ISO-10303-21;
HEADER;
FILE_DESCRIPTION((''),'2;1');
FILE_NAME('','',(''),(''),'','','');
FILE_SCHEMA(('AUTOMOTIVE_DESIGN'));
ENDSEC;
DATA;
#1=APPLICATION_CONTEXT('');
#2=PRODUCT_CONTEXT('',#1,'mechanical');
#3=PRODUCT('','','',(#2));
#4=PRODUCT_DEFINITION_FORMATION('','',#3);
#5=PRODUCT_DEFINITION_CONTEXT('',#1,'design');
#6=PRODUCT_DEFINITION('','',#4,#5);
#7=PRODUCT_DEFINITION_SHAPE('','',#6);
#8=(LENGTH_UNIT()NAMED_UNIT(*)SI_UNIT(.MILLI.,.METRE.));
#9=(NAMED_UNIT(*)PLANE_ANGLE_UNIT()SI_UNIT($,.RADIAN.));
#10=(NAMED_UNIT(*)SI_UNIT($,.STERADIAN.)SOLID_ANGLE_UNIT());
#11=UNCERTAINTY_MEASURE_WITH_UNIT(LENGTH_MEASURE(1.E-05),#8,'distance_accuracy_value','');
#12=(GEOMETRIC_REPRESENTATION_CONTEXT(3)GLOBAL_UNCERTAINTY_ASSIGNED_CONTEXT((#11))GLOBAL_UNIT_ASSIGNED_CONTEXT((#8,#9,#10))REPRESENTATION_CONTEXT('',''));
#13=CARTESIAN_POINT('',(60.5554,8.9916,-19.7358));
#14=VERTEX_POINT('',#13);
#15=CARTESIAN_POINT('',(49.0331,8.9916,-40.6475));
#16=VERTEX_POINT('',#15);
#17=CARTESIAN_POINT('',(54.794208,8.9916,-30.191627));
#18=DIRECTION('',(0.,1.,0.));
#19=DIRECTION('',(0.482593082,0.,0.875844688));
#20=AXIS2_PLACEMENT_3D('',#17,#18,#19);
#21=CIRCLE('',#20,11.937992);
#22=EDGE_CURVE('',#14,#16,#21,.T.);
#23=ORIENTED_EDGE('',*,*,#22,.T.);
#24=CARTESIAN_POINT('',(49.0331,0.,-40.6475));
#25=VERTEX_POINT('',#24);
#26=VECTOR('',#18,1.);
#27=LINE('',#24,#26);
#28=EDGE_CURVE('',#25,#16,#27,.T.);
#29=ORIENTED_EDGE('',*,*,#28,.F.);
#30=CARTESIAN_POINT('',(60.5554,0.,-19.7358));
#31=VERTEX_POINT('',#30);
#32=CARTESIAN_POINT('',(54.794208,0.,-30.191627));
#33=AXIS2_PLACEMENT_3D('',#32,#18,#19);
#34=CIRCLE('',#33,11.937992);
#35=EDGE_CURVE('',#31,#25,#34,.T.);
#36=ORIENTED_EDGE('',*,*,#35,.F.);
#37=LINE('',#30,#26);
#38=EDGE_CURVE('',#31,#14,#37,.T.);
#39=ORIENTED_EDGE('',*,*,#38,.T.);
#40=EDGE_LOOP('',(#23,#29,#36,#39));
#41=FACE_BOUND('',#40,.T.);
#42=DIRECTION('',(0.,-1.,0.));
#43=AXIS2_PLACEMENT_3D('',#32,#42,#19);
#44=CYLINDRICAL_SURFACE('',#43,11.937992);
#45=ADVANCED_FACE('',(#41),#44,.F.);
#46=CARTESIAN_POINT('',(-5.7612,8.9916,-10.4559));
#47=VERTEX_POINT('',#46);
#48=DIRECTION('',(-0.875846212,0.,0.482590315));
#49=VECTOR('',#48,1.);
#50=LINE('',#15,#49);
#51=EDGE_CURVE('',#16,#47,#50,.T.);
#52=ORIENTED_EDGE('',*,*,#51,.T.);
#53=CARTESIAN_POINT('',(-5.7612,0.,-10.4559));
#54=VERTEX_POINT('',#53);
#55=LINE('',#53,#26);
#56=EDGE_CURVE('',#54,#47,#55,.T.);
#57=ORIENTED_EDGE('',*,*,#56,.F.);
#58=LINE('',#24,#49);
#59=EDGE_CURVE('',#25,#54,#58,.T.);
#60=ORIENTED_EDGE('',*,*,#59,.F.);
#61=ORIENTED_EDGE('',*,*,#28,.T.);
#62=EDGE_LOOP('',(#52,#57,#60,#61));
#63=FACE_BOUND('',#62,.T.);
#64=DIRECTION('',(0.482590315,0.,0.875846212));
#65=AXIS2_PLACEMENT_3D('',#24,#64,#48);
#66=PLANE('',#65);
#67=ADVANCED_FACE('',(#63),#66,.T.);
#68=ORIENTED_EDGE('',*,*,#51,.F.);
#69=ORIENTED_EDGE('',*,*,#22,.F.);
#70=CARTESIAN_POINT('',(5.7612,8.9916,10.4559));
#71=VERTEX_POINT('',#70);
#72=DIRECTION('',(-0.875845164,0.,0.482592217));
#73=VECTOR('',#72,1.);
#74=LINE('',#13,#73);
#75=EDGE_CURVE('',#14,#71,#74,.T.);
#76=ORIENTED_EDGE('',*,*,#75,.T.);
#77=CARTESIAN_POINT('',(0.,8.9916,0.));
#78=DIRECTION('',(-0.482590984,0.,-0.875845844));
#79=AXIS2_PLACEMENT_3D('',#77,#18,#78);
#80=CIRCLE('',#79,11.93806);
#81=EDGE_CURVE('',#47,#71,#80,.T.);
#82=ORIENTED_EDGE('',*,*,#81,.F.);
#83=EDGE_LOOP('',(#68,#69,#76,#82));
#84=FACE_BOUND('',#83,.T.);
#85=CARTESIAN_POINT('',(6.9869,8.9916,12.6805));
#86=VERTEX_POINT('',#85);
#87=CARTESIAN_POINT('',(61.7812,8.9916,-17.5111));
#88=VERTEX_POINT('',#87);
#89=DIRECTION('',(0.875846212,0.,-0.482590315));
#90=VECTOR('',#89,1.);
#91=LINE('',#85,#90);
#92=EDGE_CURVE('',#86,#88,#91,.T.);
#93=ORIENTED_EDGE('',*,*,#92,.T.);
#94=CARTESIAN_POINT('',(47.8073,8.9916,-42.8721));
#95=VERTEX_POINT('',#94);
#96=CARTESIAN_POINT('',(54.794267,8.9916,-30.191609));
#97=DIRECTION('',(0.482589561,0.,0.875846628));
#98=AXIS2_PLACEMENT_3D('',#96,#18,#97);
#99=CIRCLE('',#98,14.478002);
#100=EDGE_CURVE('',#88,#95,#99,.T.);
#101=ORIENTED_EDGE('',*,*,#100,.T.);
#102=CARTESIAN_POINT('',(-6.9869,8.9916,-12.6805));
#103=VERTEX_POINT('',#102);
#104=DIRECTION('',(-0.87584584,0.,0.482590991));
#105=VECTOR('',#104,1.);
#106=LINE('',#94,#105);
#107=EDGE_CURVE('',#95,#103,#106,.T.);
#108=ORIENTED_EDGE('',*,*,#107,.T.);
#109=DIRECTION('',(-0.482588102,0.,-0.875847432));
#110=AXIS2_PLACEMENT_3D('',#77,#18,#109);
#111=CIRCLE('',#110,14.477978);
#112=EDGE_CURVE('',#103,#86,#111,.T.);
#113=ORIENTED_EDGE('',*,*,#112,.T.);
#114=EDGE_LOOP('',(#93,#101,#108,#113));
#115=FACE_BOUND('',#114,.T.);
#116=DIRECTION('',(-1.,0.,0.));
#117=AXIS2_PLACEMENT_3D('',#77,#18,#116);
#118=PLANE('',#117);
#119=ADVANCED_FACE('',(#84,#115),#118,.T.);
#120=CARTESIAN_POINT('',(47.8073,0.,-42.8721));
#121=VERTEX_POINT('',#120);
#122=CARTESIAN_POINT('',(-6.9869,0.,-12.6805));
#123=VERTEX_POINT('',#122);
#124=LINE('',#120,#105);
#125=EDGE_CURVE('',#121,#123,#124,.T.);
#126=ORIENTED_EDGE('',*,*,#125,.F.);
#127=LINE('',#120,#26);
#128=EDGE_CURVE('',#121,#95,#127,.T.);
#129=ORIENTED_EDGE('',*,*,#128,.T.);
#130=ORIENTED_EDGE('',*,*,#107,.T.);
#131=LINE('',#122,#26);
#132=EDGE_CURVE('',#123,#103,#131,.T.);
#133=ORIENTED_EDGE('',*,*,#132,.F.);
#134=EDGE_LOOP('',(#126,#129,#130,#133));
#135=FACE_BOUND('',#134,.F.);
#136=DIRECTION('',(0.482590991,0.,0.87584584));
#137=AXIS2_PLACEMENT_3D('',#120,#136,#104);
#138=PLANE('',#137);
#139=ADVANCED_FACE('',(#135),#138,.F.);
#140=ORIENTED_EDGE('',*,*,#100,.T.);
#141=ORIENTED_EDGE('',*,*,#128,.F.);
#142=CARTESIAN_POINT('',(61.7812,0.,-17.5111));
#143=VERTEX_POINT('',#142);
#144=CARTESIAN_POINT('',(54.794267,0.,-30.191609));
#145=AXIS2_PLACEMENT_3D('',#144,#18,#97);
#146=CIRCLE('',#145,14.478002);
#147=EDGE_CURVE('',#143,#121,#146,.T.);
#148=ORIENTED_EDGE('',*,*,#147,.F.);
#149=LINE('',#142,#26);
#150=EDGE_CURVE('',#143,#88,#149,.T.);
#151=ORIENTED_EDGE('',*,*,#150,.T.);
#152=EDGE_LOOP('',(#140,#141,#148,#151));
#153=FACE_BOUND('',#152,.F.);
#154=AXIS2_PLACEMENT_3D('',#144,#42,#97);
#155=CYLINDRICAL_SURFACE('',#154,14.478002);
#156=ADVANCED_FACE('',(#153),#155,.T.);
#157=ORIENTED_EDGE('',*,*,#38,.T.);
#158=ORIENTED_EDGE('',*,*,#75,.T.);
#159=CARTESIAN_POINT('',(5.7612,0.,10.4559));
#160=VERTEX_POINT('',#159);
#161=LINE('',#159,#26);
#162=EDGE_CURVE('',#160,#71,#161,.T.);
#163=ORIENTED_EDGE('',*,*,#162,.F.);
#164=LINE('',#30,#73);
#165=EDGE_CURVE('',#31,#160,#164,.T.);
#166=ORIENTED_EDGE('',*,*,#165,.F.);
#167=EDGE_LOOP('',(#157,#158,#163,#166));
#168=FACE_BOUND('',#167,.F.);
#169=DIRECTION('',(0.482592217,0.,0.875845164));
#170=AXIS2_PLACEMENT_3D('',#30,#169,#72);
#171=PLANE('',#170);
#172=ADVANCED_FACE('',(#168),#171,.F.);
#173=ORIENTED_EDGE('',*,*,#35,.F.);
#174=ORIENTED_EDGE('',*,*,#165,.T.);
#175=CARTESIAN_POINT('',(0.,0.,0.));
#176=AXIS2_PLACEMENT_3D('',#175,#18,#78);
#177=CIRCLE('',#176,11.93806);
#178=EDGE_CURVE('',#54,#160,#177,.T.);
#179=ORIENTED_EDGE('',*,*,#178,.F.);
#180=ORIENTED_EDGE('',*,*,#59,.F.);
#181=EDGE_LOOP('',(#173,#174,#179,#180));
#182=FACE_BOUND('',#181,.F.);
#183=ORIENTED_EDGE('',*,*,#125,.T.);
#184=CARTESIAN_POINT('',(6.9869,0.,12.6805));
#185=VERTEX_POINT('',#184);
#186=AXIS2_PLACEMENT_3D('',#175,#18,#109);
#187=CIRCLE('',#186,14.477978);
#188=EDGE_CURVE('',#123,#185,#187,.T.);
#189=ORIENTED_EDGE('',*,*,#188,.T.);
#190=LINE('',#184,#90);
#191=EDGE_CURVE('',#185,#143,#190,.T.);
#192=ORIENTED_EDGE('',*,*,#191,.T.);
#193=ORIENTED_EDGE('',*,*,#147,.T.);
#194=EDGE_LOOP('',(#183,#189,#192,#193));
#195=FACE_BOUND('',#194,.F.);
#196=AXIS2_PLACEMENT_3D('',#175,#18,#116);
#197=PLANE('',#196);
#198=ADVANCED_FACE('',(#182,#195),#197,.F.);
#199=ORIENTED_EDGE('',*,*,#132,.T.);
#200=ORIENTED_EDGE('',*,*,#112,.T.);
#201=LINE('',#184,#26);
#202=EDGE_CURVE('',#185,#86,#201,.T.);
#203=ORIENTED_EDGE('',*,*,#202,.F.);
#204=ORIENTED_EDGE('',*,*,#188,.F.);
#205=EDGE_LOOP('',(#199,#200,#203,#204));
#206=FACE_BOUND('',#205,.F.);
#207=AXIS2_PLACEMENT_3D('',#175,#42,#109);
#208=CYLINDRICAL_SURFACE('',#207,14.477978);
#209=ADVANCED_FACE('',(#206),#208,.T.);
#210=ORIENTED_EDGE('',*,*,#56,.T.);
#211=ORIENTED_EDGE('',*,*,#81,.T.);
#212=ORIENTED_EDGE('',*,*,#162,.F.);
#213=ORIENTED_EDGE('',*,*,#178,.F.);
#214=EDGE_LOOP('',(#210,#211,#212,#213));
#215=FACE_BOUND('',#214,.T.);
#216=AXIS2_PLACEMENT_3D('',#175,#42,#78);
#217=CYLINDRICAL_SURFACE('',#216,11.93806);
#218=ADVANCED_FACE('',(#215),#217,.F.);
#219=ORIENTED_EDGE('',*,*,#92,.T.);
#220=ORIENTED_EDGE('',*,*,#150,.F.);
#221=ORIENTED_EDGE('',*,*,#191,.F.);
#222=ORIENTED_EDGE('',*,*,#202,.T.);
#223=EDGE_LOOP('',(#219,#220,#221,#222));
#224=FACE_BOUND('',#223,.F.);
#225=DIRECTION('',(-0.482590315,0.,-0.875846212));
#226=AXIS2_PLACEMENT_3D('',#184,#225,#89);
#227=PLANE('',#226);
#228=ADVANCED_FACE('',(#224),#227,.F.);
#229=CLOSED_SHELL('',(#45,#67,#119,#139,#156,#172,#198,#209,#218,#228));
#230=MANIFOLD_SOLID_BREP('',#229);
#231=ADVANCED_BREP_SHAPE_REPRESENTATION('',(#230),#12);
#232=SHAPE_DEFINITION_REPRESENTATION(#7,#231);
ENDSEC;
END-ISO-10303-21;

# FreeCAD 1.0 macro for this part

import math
import FreeCAD as App
import Part
import Sketcher

V = App.Vector
Q = App.Units.Quantity

doc = App.newDocument("Part")
body = doc.addObject("PartDesign::Body", "Body")

sketch1 = body.newObject("Sketcher::SketchObject", "Sketch")
sketch1.AttachmentSupport = (doc.getObject("XZ_Plane"), [""])
sketch1.MapMode = "FlatFace"
sketch1.addGeometry([
    Part.ArcOfCircle(Part.Circle(V(0, 0, 0), V(0, 0, 1), 14), math.radians(61), math.radians(241)),
    Part.LineSegment(V(7, 13, 0), V(62, -18, 0)),
    Part.ArcOfCircle(Part.Circle(V(55, -30, 0), V(0, 0, 1), 14), math.radians(-119), math.radians(61)),
    Part.LineSegment(V(48, -43, 0), V(-7, -13, 0)),
    Part.LineSegment(V(-6, -10, 0), V(49, -41, 0)),
    Part.ArcOfCircle(Part.Circle(V(55, -30, 0), V(0, 0, 1), 12), math.radians(-119), math.radians(61)),
    Part.LineSegment(V(61, -20, 0), V(6, 10, 0)),
    Part.ArcOfCircle(Part.Circle(V(0, 0, 0), V(0, 0, 1), 12), math.radians(61), math.radians(241)),
], False)
sketch1.addConstraint([
    Sketcher.Constraint("Tangent", 0, 1, 1, 1),
    Sketcher.Constraint("Tangent", 1, 2, 2, 2),
    Sketcher.Constraint("Tangent", 2, 1, 3, 1),
    Sketcher.Constraint("Tangent", 3, 2, 0, 2),
    Sketcher.Constraint("Tangent", 4, 2, 5, 1),
    Sketcher.Constraint("Tangent", 5, 2, 6, 1),
    Sketcher.Constraint("Tangent", 6, 2, 7, 1),
    Sketcher.Constraint("Tangent", 7, 2, 4, 1),
    Sketcher.Constraint("Coincident", 0, 3, -1, 1),
    Sketcher.Constraint("Coincident", 7, 3, -1, 1),
    Sketcher.Constraint("Coincident", 5, 3, 2, 3),
    Sketcher.Constraint("Equal", 0, 2),
    Sketcher.Constraint("Equal", 5, 7),
    Sketcher.Constraint("Radius", 5, Q("0.47 in")),
    Sketcher.Constraint("Radius", 0, Q("0.57 in")),
    Sketcher.Constraint("Distance", 1, Q("62.5616 mm")),
    Sketcher.Constraint("DistanceY", 5, 2, -1, 1, Q("0.777 in")),
])
pad1 = body.newObject("PartDesign::Pad", "Pad")
pad1.Profile = sketch1
pad1.Length = Q("0.354 in")
pad1.Reversed = True

doc.recompute()
